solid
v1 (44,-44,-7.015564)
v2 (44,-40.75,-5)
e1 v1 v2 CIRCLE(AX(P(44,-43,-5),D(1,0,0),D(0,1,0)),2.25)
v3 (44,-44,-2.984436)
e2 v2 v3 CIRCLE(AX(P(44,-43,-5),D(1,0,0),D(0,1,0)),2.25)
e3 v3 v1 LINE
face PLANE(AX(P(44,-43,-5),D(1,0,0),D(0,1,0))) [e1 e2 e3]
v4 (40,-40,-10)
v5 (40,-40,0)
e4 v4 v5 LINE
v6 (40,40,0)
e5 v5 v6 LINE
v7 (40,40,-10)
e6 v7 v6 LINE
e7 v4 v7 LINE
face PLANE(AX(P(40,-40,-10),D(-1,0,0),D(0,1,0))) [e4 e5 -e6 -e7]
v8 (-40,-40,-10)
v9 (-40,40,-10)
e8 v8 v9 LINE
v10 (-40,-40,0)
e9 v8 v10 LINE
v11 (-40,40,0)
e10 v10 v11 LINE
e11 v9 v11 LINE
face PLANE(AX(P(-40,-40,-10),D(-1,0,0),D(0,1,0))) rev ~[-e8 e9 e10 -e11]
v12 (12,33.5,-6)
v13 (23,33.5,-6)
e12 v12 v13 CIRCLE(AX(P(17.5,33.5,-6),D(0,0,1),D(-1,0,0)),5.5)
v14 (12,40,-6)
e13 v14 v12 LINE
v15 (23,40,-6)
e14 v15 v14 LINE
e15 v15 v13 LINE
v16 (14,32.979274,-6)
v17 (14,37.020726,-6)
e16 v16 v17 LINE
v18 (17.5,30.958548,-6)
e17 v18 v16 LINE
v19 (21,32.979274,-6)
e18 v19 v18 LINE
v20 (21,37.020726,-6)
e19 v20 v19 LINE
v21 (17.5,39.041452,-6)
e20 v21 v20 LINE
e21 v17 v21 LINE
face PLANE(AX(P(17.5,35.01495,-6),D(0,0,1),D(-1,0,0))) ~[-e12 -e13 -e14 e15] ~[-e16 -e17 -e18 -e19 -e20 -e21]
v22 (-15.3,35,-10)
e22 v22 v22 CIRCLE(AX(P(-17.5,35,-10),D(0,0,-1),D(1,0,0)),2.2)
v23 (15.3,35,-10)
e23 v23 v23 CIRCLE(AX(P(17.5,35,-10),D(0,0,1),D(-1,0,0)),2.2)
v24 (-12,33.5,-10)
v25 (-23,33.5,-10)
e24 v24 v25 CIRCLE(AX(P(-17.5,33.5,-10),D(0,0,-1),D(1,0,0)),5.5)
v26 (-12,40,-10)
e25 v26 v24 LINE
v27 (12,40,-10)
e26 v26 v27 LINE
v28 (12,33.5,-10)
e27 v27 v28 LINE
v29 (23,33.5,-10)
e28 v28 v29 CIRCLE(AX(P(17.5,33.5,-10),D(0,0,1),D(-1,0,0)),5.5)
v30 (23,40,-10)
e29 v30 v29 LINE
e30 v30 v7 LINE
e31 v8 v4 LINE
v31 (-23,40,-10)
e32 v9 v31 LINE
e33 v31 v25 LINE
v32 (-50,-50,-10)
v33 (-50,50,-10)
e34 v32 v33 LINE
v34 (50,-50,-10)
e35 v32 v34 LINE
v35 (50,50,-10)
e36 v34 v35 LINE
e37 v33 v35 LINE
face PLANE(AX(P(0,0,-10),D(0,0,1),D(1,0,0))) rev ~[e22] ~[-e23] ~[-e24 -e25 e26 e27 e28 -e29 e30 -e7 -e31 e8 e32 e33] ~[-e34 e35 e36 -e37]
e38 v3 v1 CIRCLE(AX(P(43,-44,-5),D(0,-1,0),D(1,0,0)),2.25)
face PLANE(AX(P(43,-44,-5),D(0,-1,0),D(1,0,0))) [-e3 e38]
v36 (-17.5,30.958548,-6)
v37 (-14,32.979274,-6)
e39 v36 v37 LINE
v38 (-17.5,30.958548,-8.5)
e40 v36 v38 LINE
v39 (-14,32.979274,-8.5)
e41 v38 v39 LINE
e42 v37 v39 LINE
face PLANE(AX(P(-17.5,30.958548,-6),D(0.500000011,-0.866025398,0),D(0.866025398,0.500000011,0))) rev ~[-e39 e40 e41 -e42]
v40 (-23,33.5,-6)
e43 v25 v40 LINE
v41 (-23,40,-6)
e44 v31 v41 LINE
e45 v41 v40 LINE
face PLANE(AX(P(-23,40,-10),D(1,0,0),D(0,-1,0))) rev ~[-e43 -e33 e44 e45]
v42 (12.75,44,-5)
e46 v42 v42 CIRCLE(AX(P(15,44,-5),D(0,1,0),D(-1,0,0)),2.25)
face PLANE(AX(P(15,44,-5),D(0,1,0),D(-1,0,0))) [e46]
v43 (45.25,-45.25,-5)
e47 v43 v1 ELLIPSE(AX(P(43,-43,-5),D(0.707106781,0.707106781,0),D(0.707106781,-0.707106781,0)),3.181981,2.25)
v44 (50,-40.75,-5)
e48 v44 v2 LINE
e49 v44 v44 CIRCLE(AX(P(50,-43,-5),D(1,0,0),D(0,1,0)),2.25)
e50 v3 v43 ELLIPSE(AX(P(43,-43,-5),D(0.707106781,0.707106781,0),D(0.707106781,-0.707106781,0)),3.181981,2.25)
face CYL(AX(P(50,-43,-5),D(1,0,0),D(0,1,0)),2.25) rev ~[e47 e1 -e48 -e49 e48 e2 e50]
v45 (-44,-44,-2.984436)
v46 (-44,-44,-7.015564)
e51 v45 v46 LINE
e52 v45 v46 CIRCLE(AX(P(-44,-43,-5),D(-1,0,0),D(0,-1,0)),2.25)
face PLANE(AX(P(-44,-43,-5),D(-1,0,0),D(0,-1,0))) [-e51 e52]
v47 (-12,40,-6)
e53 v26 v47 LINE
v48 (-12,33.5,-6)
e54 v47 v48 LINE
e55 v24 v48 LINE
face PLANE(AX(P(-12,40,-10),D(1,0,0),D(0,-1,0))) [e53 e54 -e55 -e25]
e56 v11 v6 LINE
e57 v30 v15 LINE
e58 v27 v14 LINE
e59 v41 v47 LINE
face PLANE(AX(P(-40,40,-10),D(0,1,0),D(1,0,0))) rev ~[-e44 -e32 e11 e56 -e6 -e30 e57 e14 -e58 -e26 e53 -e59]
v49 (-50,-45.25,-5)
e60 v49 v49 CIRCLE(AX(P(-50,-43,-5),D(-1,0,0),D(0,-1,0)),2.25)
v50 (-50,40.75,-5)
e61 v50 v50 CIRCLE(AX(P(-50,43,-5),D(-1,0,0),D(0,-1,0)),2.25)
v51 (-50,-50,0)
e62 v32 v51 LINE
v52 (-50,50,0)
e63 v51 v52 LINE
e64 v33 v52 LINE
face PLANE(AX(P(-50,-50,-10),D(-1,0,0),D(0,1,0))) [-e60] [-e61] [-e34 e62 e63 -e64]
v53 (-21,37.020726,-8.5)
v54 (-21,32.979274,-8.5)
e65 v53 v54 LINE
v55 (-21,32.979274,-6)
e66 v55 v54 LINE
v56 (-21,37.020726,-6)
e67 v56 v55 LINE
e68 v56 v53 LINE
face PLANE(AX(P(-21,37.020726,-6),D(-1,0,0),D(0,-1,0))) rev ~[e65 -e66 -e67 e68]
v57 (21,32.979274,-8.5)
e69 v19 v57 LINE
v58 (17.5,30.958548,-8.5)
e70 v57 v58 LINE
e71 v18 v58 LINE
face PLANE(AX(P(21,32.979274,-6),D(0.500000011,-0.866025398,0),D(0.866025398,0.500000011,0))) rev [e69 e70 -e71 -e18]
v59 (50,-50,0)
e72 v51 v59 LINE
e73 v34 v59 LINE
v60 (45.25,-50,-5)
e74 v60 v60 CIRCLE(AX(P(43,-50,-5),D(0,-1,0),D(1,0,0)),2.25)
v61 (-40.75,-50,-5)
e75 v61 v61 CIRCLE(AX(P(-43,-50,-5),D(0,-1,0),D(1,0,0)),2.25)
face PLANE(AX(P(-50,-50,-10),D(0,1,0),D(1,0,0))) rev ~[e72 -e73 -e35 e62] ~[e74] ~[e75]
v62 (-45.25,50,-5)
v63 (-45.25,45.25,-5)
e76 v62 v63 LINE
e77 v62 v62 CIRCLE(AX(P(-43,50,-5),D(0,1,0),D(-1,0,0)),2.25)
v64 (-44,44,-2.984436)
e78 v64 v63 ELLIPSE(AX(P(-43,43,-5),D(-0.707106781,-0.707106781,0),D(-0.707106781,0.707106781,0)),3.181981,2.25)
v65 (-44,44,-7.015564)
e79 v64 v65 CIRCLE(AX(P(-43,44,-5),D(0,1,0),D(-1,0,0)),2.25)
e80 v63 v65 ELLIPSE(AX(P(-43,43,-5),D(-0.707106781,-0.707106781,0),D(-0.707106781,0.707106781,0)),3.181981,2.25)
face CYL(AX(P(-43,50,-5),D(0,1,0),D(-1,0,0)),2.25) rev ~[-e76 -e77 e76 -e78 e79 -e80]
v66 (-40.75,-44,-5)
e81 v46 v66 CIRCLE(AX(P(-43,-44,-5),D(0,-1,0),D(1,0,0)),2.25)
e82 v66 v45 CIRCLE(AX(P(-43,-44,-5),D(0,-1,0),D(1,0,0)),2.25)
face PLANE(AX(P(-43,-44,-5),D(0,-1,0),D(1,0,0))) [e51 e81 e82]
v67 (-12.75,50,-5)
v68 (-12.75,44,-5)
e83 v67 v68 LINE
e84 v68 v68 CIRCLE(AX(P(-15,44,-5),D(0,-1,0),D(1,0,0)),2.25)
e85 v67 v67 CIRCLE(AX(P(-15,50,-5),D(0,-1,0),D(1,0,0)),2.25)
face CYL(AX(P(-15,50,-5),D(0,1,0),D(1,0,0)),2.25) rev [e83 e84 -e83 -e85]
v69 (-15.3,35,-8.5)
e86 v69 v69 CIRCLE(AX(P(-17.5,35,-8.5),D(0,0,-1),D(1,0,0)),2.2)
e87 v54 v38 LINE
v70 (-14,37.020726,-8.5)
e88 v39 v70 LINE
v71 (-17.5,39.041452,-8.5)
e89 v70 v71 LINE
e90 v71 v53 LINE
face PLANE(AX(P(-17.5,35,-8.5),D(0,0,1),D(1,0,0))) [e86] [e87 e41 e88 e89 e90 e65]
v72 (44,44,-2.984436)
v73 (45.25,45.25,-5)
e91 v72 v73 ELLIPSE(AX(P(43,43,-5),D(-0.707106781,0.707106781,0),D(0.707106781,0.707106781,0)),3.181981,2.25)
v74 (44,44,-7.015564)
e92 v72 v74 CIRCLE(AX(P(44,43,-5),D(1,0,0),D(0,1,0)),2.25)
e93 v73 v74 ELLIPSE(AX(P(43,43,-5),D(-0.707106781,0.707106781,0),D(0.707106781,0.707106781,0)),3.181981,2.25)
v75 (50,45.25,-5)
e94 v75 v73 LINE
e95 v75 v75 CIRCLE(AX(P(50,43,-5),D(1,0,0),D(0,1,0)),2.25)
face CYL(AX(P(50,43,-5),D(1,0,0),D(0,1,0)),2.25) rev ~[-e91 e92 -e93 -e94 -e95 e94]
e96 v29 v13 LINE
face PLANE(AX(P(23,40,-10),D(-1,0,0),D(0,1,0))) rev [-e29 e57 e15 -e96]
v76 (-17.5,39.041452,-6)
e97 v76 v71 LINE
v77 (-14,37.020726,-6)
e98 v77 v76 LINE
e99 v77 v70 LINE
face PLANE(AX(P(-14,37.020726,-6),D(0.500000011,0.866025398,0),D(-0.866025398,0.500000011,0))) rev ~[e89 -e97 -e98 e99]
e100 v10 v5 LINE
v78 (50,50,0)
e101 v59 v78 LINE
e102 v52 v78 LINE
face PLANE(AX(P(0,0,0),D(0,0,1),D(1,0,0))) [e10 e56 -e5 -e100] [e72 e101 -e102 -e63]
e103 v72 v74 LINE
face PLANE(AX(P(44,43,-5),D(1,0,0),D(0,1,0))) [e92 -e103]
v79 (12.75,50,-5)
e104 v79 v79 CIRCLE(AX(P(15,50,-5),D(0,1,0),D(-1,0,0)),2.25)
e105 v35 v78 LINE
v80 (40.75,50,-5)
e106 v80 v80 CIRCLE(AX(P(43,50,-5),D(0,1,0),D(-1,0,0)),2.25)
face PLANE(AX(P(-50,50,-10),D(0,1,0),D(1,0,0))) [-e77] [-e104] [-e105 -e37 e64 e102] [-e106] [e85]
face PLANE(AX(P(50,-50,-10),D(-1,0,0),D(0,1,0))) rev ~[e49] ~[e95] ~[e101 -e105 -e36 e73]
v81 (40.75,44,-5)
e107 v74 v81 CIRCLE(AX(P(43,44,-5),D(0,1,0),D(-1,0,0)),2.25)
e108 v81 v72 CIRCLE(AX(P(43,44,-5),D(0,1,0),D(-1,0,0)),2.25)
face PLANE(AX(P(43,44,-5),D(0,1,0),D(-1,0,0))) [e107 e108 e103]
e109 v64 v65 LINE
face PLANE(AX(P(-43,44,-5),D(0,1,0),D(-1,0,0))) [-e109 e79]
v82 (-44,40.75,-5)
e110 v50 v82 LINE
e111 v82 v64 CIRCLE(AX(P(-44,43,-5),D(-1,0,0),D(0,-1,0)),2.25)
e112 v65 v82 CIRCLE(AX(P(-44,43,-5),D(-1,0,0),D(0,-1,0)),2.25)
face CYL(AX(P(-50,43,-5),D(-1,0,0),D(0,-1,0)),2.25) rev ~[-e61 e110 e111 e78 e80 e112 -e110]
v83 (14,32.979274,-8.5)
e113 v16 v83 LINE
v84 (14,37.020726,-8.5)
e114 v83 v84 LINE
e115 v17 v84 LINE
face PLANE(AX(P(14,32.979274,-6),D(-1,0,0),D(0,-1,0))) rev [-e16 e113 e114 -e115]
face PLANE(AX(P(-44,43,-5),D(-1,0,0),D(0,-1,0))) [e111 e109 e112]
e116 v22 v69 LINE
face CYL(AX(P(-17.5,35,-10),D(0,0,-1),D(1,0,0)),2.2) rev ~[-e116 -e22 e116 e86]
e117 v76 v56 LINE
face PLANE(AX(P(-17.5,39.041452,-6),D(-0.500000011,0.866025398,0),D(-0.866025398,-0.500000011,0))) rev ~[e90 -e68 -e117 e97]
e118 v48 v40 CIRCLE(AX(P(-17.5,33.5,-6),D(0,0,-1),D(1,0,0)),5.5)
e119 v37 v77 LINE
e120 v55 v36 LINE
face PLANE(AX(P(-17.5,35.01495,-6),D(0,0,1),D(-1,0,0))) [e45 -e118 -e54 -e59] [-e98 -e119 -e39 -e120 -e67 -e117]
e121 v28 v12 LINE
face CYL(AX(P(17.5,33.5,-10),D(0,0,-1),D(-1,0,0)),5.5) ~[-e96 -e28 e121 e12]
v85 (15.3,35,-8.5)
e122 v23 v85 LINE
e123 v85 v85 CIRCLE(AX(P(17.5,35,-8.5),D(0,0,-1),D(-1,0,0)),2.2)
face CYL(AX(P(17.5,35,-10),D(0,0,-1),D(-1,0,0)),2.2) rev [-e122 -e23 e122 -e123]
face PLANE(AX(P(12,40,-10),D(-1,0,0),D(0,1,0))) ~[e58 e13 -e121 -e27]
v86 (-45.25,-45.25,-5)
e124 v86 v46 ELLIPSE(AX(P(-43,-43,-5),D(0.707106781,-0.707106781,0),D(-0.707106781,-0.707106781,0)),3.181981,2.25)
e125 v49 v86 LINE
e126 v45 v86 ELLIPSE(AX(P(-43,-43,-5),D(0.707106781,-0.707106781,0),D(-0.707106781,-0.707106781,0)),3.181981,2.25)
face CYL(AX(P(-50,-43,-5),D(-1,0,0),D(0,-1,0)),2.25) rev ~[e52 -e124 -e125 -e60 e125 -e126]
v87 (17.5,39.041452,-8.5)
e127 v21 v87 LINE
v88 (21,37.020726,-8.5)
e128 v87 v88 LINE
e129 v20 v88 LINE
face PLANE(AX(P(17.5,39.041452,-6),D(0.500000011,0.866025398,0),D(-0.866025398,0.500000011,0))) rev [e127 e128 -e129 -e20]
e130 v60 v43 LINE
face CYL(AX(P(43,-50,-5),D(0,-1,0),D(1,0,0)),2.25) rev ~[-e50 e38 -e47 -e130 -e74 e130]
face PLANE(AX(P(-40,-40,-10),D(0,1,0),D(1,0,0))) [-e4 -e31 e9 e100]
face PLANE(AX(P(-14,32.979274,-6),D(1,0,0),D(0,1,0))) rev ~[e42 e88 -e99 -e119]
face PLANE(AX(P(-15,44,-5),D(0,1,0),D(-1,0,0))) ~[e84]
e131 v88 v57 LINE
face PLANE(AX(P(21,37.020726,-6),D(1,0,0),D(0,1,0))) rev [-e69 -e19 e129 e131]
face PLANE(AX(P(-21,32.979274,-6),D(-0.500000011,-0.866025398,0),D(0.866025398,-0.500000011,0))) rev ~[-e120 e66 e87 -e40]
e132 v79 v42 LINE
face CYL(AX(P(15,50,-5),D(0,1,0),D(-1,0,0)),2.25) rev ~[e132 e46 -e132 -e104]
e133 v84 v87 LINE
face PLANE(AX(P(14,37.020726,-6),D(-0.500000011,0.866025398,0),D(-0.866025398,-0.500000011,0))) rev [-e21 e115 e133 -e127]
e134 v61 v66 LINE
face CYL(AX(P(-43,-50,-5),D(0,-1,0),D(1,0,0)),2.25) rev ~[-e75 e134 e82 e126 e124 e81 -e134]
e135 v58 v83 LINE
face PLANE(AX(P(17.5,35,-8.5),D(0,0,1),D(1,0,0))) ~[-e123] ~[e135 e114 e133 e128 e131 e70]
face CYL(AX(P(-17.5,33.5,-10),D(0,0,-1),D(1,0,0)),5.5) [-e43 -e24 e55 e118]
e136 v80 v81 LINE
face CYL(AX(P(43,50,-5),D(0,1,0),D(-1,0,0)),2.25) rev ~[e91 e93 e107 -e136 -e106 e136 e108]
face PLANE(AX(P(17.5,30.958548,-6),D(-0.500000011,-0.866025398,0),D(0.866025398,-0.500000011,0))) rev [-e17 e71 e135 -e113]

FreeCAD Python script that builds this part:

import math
import FreeCAD as App
import Part
import Sketcher

V = App.Vector
Q = App.Units.Quantity


def add_polygon(sketch, points):
    """Adds a closed chain of lines whose ends are joined by coincident constraints."""
    first, n = sketch.GeometryCount, len(points)
    for a, b in zip(points, points[1:] + points[:1]):
        sketch.addGeometry(Part.LineSegment(App.Vector(*a, 0), App.Vector(*b, 0)), False)
    for i in range(n):
        sketch.addConstraint(Sketcher.Constraint("Coincident", first + i, 2, first + (i + 1) % n, 1))

doc = App.newDocument("Part")
body = doc.addObject("PartDesign::Body", "Body")

sketch1 = body.newObject("Sketcher::SketchObject", "Sketch")
sketch1.AttachmentSupport = (doc.getObject("XY_Plane"), [""])
sketch1.MapMode = "FlatFace"
add_polygon(sketch1, [(-50, 50), (-50, -50), (50, -50), (50, 50)])
add_polygon(sketch1, [(40, -40), (-40, -40), (-40, 40), (40, 40)])
sketch1.addConstraint([
    Sketcher.Constraint("Vertical", 0),
    Sketcher.Constraint("Horizontal", 1),
    Sketcher.Constraint("Vertical", 2),
    Sketcher.Constraint("Horizontal", 3),
    Sketcher.Constraint("Horizontal", 4),
    Sketcher.Constraint("Vertical", 5),
    Sketcher.Constraint("Horizontal", 6),
    Sketcher.Constraint("Vertical", 7),
    Sketcher.Constraint("Symmetric", 0, 2, 2, 2, -1, 1),
    Sketcher.Constraint("Symmetric", 4, 2, 6, 2, -1, 1),
    Sketcher.Constraint("Equal", 3, 0),
    Sketcher.Constraint("Equal", 6, 5),
    Sketcher.Constraint("DistanceX", 1, 1, 1, 2, 100.0),
    Sketcher.Constraint("DistanceX", 4, 2, 4, 1, 80.0),
])
pad1 = body.newObject("PartDesign::Pad", "Pad")
pad1.Profile = sketch1
pad1.Length = 10

sketch2 = body.newObject("Sketcher::SketchObject", "Sketch001")
sketch2.AttachmentSupport = (doc.getObject("XZ_Plane"), [""])
sketch2.MapMode = "FlatFace"
sketch2.AttachmentOffset = App.Placement(V(0, 0, 50), App.Rotation())
sketch2.addGeometry(Part.Circle(V(-43, 5, 0), V(0, 0, 1), 2.25), False)
sketch2.addConstraint([
    Sketcher.Constraint("Diameter", 0, 4.5),
    Sketcher.Constraint("DistanceX", 0, 3, -1, 1, 43.0),
    Sketcher.Constraint("DistanceY", -1, 1, 0, 3, 5.0),
])
pocket1 = body.newObject("PartDesign::Pocket", "Pocket")
pocket1.Profile = sketch2
pocket1.Length = 6
doc.recompute()

polarpattern = body.newObject("PartDesign::PolarPattern", "PolarPattern")
polarpattern.Originals = [pocket1]
polarpattern.Axis = (doc.getObject("Z_Axis"), [""])
polarpattern.Angle = 360
polarpattern.Occurrences = 4
body.Tip = polarpattern

sketch3 = body.newObject("Sketcher::SketchObject", "Sketch002")
sketch3.AttachmentSupport = (doc.getObject("YZ_Plane"), [""])
sketch3.MapMode = "FlatFace"
sketch3.AttachmentOffset = App.Placement(V(0, 0, -50), App.Rotation())
sketch3.addGeometry(Part.Circle(V(-43, 5, 0), V(0, 0, 1), 2.25), False)
sketch3.addConstraint([
    Sketcher.Constraint("Diameter", 0, 4.5),
    Sketcher.Constraint("DistanceX", 0, 3, -1, 1, 43.0),
    Sketcher.Constraint("DistanceY", -1, 1, 0, 3, 5.0),
])
pocket2 = body.newObject("PartDesign::Pocket", "Pocket001")
pocket2.Profile = sketch3
pocket2.Length = 6
pocket2.Reversed = True
doc.recompute()

polarpattern2 = body.newObject("PartDesign::PolarPattern", "PolarPattern001")
polarpattern2.Originals = [pocket2]
polarpattern2.Axis = (doc.getObject("Z_Axis"), [""])
polarpattern2.Angle = 360
polarpattern2.Occurrences = 4
body.Tip = polarpattern2

sketch4 = body.newObject("Sketcher::SketchObject", "Sketch003")
sketch4.AttachmentSupport = (doc.getObject("XZ_Plane"), [""])
sketch4.MapMode = "FlatFace"
sketch4.AttachmentOffset = App.Placement(V(0, 0, -50), App.Rotation())
sketch4.addGeometry(Part.Circle(V(15, 5, 0), V(0, 0, 1), 2.25), False)
sketch4.addConstraint([
    Sketcher.Constraint("Diameter", 0, 4.5),
    Sketcher.Constraint("DistanceX", -1, 1, 0, 3, 15.0),
    Sketcher.Constraint("DistanceY", -1, 1, 0, 3, 5.0),
])
pocket3 = body.newObject("PartDesign::Pocket", "Pocket002")
pocket3.Profile = sketch4
pocket3.Length = 6
pocket3.Reversed = True
doc.recompute()

mirrored = body.newObject("PartDesign::Mirrored", "Mirrored")
mirrored.Originals = [pocket3]
mirrored.MirrorPlane = (doc.getObject("YZ_Plane"), [""])
body.Tip = mirrored

sketch5 = body.newObject("Sketcher::SketchObject", "Sketch004")
sketch5.AttachmentSupport = (doc.getObject("XY_Plane"), [""])
sketch5.MapMode = "FlatFace"
sketch5.addGeometry([
    Part.LineSegment(V(-23, 33.5, 0), V(-23, 40, 0)),
    Part.LineSegment(V(-23, 40, 0), V(-12, 40, 0)),
    Part.LineSegment(V(-12, 40, 0), V(-12, 33.5, 0)),
    Part.ArcOfCircle(Part.Circle(V(-17.5, 33.5, 0), V(0, 0, 1), 5.5), math.radians(180), math.radians(360)),
    Part.Circle(V(-17.5, 35, 0), V(0, 0, 1), 2.2),
], False)
sketch5.addConstraint([
    Sketcher.Constraint("Coincident", 0, 2, 1, 1),
    Sketcher.Constraint("Coincident", 1, 2, 2, 1),
    Sketcher.Constraint("Tangent", 2, 2, 3, 2),
    Sketcher.Constraint("Tangent", 3, 1, 0, 1),
    Sketcher.Constraint("Vertical", 0),
    Sketcher.Constraint("Horizontal", 1),
    Sketcher.Constraint("Vertical", 2),
    Sketcher.Constraint("Vertical", 3, 3, 4, 3),
    Sketcher.Constraint("Diameter", 4, 4.4),
    Sketcher.Constraint("Radius", 3, 5.5),
    Sketcher.Constraint("DistanceY", 0, 1, 0, 2, 6.5),
    Sketcher.Constraint("DistanceY", -1, 1, 4, 3, 35.0),
    Sketcher.Constraint("DistanceX", 0, 2, -1, 1, 23.0),
    Sketcher.Constraint("DistanceY", -1, 1, 0, 2, 40.0),
])
pad2 = body.newObject("PartDesign::Pad", "Pad001")
pad2.Profile = sketch5
pad2.Length = 4

sketch6 = body.newObject("Sketcher::SketchObject", "Sketch005")
sketch6.AttachmentSupport = (doc.getObject("XY_Plane"), [""])
sketch6.MapMode = "FlatFace"
sketch6.AttachmentOffset = App.Placement(V(0, 0, 4), App.Rotation())
add_polygon(sketch6, [(-14, 37.020726), (-17.5, 39.041452), (-21, 37.020726), (-21, 32.979274), (-17.5, 30.958548), (-14, 32.979274)])
sketch6.addConstraint([
    Sketcher.Constraint("Vertical", 2),
    Sketcher.Constraint("Vertical", 5),
    Sketcher.Constraint("Parallel", 0, 3),
    Sketcher.Constraint("Parallel", 1, 4),
    Sketcher.Constraint("Horizontal", 2, 2, 4, 2),
    Sketcher.Constraint("Horizontal", 1, 2, 5, 2),
    Sketcher.Constraint("Vertical", 0, 2, 3, 2),
    Sketcher.Constraint("Angle", 0, Q("149.999999 deg")),
    Sketcher.Constraint("DistanceX", 1, 2, -1, 1, 21.0),
    Sketcher.Constraint("DistanceX", 4, 2, -1, 1, 14.0),
    Sketcher.Constraint("DistanceY", 2, 2, 2, 1, 4.041452),
    Sketcher.Constraint("DistanceY", -1, 1, 3, 2, 30.958548),
])
pocket4 = body.newObject("PartDesign::Pocket", "Pocket003")
pocket4.Profile = sketch6
pocket4.Length = 2.5
doc.recompute()

mirrored2 = body.newObject("PartDesign::Mirrored", "Mirrored001")
mirrored2.Originals = [pad2, pocket4]
mirrored2.MirrorPlane = (doc.getObject("YZ_Plane"), [""])
body.Tip = mirrored2
body2 = doc.addObject("PartDesign::Body", "Body001")
doc.recompute()

body.Placement = App.Placement(V(0, 0, -10), App.Rotation(V(0, 0, 1), 0))
boolean = body2.newObject("PartDesign::Boolean", "Boolean")
boolean.Type = "Fuse"
boolean.addObjects([body])

doc.recompute()
